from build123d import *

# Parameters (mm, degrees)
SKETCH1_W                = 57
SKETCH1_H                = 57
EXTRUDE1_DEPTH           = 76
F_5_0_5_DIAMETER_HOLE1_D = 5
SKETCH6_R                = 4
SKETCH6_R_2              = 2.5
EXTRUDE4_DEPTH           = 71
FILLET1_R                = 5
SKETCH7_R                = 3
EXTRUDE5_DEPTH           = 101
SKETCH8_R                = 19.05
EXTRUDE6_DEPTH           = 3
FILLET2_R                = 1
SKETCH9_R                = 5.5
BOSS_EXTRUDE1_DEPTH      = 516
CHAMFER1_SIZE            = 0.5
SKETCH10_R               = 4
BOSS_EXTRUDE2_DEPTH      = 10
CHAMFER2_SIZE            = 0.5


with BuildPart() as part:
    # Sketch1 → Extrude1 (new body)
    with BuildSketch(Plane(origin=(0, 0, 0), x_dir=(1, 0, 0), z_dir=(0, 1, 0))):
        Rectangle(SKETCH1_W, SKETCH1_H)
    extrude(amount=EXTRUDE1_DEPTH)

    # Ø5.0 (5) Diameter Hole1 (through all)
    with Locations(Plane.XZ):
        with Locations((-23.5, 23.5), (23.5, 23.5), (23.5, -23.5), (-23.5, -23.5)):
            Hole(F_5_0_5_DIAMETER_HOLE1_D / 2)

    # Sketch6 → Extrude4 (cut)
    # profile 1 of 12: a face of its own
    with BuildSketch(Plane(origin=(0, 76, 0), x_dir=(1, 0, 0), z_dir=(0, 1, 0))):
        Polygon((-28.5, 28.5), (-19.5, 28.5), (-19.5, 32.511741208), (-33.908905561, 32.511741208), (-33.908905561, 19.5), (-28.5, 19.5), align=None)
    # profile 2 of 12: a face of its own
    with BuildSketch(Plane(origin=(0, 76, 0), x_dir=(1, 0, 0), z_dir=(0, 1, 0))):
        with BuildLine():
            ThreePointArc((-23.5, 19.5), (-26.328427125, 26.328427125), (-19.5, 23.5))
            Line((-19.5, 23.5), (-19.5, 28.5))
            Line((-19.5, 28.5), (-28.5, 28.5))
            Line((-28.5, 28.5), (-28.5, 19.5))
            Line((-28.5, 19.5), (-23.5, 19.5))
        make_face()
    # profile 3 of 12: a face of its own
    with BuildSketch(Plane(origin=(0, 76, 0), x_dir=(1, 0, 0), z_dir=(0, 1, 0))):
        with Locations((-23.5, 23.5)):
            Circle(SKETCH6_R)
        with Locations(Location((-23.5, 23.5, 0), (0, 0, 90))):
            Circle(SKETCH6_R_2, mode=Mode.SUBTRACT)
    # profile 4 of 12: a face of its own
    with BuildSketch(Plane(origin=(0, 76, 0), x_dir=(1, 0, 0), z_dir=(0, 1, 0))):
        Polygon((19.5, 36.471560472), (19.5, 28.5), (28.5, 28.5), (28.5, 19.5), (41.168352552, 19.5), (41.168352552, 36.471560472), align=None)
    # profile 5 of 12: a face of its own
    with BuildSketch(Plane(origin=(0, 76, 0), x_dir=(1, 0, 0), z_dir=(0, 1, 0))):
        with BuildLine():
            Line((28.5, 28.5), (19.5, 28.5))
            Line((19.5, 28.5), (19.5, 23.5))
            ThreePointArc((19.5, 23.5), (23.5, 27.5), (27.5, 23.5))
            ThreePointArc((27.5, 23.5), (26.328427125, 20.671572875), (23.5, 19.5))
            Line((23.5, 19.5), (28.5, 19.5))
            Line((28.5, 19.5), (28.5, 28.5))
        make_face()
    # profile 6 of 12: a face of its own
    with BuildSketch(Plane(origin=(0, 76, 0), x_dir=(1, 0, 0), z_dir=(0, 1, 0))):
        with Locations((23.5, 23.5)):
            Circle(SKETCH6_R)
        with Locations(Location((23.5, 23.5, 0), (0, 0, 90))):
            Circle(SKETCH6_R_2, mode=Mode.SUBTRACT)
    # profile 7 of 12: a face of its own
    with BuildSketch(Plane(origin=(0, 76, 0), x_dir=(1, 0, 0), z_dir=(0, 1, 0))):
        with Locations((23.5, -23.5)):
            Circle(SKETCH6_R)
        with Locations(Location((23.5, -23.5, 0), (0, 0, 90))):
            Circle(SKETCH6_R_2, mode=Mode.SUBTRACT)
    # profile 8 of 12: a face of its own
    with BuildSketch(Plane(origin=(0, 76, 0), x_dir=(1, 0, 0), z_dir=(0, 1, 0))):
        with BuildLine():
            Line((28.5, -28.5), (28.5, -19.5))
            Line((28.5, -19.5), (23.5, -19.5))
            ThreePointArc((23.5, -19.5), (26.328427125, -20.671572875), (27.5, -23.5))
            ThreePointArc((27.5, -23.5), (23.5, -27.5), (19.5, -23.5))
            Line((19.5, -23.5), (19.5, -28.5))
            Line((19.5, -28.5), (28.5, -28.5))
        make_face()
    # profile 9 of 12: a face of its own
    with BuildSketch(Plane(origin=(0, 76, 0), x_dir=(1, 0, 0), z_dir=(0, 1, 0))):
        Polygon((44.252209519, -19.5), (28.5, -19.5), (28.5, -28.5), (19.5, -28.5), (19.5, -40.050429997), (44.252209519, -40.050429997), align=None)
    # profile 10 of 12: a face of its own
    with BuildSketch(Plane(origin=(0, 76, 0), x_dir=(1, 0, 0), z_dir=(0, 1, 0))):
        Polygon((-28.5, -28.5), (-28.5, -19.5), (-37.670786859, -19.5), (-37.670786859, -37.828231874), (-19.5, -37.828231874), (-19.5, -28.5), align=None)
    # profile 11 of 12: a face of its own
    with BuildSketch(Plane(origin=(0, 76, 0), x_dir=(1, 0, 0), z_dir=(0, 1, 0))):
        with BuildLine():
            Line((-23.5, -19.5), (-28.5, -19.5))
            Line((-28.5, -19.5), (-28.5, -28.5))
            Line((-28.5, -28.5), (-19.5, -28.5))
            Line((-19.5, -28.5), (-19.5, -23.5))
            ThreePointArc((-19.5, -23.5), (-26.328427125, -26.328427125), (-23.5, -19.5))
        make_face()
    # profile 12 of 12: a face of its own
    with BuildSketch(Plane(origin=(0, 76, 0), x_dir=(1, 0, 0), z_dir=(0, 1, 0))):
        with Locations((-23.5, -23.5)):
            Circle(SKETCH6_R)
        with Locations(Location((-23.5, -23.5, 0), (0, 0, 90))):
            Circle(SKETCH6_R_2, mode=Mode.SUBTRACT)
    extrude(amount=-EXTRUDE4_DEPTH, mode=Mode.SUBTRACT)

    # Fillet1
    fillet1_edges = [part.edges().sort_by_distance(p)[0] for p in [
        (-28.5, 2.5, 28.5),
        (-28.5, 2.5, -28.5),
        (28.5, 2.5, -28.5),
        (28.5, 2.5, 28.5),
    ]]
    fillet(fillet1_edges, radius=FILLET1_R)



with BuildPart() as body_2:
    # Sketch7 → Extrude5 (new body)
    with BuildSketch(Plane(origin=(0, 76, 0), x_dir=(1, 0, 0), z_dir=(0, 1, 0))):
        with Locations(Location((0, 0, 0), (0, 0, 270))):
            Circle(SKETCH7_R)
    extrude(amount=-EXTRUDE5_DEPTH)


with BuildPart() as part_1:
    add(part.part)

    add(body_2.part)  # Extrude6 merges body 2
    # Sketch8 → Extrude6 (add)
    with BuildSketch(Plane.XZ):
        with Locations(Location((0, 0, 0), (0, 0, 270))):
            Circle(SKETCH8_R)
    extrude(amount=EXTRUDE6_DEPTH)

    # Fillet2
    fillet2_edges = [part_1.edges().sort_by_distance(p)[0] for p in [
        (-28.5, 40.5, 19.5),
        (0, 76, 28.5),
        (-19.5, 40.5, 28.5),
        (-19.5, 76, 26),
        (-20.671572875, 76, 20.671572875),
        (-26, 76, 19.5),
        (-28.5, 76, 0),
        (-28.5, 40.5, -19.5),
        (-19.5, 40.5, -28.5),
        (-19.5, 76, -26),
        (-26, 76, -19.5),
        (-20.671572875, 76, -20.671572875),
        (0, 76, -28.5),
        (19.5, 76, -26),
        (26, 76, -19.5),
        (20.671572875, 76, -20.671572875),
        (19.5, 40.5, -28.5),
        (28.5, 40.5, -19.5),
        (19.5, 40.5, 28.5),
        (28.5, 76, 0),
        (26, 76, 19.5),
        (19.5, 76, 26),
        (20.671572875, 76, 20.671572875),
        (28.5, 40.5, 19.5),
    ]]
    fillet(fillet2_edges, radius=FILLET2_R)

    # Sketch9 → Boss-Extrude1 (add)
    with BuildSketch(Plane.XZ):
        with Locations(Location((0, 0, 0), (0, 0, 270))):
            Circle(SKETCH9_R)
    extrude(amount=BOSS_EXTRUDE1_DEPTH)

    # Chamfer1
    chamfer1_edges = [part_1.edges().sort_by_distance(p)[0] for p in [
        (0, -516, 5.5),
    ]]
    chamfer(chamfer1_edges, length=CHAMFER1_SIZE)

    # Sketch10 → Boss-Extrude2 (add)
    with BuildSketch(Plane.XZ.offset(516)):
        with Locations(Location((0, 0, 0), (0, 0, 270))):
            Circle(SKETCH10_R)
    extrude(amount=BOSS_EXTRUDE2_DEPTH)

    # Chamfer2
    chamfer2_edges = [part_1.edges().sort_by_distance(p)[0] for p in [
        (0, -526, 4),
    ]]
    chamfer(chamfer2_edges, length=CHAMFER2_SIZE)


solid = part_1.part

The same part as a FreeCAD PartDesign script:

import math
import FreeCAD as App
import Part
import Sketcher
from FreeCAD import Vector
Q = App.Units.Quantity


def edges_at(feature, points):
    """Names of the edges that pass closest to the given points."""
    edges = feature.Shape.Edges
    near = lambda p: min(range(len(edges)), key=lambda i: edges[i].distToShape(Part.Vertex(*p))[0])
    return sorted({f"Edge{near(p) + 1}" for p in points})

doc = App.newDocument("Part")
body = doc.addObject("PartDesign::Body", "Body")

sketch1 = doc.addObject("Sketcher::SketchObject", "Sketch")
body.addObject(sketch1)
sketch1.AttachmentSupport = (doc.XZ_Plane, [""])
sketch1.MapMode = "FlatFace"
sketch1.addGeometry(Part.LineSegment(Vector(-28, -28, 0), Vector(-28, 28, 0)), False)
sketch1.addGeometry(Part.LineSegment(Vector(-28, 28, 0), Vector(28, 28, 0)), False)
sketch1.addGeometry(Part.LineSegment(Vector(28, 28, 0), Vector(28, -28, 0)), False)
sketch1.addGeometry(Part.LineSegment(Vector(28, -28, 0), Vector(-28, -28, 0)), False)
sketch1.addConstraint(Sketcher.Constraint("Coincident", 0, 2, 1, 1))
sketch1.addConstraint(Sketcher.Constraint("Coincident", 1, 2, 2, 1))
sketch1.addConstraint(Sketcher.Constraint("Coincident", 2, 2, 3, 1))
sketch1.addConstraint(Sketcher.Constraint("Coincident", 3, 2, 0, 1))
sketch1.addConstraint(Sketcher.Constraint("Vertical", 0))
sketch1.addConstraint(Sketcher.Constraint("Horizontal", 1))
sketch1.addConstraint(Sketcher.Constraint("Vertical", 2))
sketch1.addConstraint(Sketcher.Constraint("Horizontal", 3))
sketch1.addConstraint(Sketcher.Constraint("Symmetric", 0, 2, 2, 2, -1, 1))
sketch1.addConstraint(Sketcher.Constraint("Equal", 3, 0))
sketch1.addConstraint(Sketcher.Constraint("DistanceX", 1, 1, 1, 2, Q("57 mm")))
pad1 = doc.addObject("PartDesign::Pad", "Pad")
body.addObject(pad1)
pad1.Profile = sketch1
pad1.Length = 76
pad1.Reversed = True

sketch2 = doc.addObject("Sketcher::SketchObject", "Sketch001")
body.addObject(sketch2)
sketch2.AttachmentSupport = (doc.XZ_Plane, [""])
sketch2.MapMode = "FlatFace"
sketch2.addGeometry(Part.Circle(Vector(-23.5, 23.5, 0), Vector(0, 0, 1), 2.5), False)
sketch2.addGeometry(Part.Circle(Vector(23.5, 23.5, 0), Vector(0, 0, 1), 2.5), False)
sketch2.addGeometry(Part.Circle(Vector(23.5, -23.5, 0), Vector(0, 0, 1), 2.5), False)
sketch2.addGeometry(Part.Circle(Vector(-23.5, -23.5, 0), Vector(0, 0, 1), 2.5), False)
sketch2.addConstraint(Sketcher.Constraint("Equal", 0, 1))
sketch2.addConstraint(Sketcher.Constraint("Equal", 1, 2))
sketch2.addConstraint(Sketcher.Constraint("Equal", 2, 3))
sketch2.addConstraint(Sketcher.Constraint("Symmetric", 0, 3, 2, 3, -1, 1))
sketch2.addConstraint(Sketcher.Constraint("Symmetric", 1, 3, 3, 3, -1, 1))
sketch2.addConstraint(Sketcher.Constraint("Symmetric", 0, 3, 1, 3, -2))
sketch2.addConstraint(Sketcher.Constraint("Diameter", 0, Q("5 mm")))
sketch2.addConstraint(Sketcher.Constraint("DistanceX", 0, 3, 1, 3, Q("47 mm")))
sketch2.addConstraint(Sketcher.Constraint("DistanceY", 2, 3, 1, 3, Q("47 mm")))
doc.recompute()
hole = doc.addObject("PartDesign::Hole", "Hole")
body.addObject(hole)
hole.Profile = sketch2
hole.ThreadType = "None"
hole.Diameter = 5
hole.DepthType = "ThroughAll"

sketch3 = doc.addObject("Sketcher::SketchObject", "Sketch002")
body.addObject(sketch3)
sketch3.AttachmentSupport = (doc.XZ_Plane, [""])
sketch3.MapMode = "FlatFace"
sketch3.AttachmentOffset = App.Placement(Vector(0, 0, -76), App.Rotation())
sketch3.addGeometry(Part.LineSegment(Vector(-19.5, -32.5, 0), Vector(-33.9, -32.5, 0)), False)
sketch3.addGeometry(Part.LineSegment(Vector(-33.9, -32.5, 0), Vector(-33.9, -19.5, 0)), False)
sketch3.addGeometry(Part.LineSegment(Vector(-33.9, -19.5, 0), Vector(-23.5, -19.5, 0)), False)
sketch3.addGeometry(Part.ArcOfCircle(Part.Circle(Vector(-23.5, -23.5, 0), Vector(0, 0, 1), 4), math.radians(0), math.radians(90)), False)
sketch3.addGeometry(Part.LineSegment(Vector(-19.5, -23.5, 0), Vector(-19.5, -32.5, 0)), False)
sketch3.addGeometry(Part.Circle(Vector(-23.5, -23.5, 0), Vector(0, 0, 1), 2.5), False)
sketch3.addGeometry(Part.LineSegment(Vector(19.5, -36.5, 0), Vector(19.5, -23.5, 0)), False)
sketch3.addGeometry(Part.ArcOfCircle(Part.Circle(Vector(23.5, -23.5, 0), Vector(0, 0, 1), 4), math.radians(90), math.radians(180)), False)
sketch3.addGeometry(Part.LineSegment(Vector(23.5, -19.5, 0), Vector(41.2, -19.5, 0)), False)
sketch3.addGeometry(Part.LineSegment(Vector(41.2, -19.5, 0), Vector(41.2, -36.5, 0)), False)
sketch3.addGeometry(Part.LineSegment(Vector(41.2, -36.5, 0), Vector(19.5, -36.5, 0)), False)
sketch3.addGeometry(Part.Circle(Vector(23.5, -23.5, 0), Vector(0, 0, 1), 2.5), False)
sketch3.addGeometry(Part.ArcOfCircle(Part.Circle(Vector(23.5, 23.5, 0), Vector(0, 0, 1), 4), math.radians(180), math.radians(270)), False)
sketch3.addGeometry(Part.LineSegment(Vector(19.5, 23.5, 0), Vector(19.5, 40.1, 0)), False)
sketch3.addGeometry(Part.LineSegment(Vector(19.5, 40.1, 0), Vector(44.3, 40.1, 0)), False)
sketch3.addGeometry(Part.LineSegment(Vector(44.3, 40.1, 0), Vector(44.3, 19.5, 0)), False)
sketch3.addGeometry(Part.LineSegment(Vector(44.3, 19.5, 0), Vector(23.5, 19.5, 0)), False)
sketch3.addGeometry(Part.Circle(Vector(23.5, 23.5, 0), Vector(0, 0, 1), 2.5), False)
sketch3.addGeometry(Part.LineSegment(Vector(-37.7, 19.5, 0), Vector(-37.7, 37.8, 0)), False)
sketch3.addGeometry(Part.LineSegment(Vector(-37.7, 37.8, 0), Vector(-19.5, 37.8, 0)), False)
sketch3.addGeometry(Part.LineSegment(Vector(-19.5, 37.8, 0), Vector(-19.5, 23.5, 0)), False)
sketch3.addGeometry(Part.ArcOfCircle(Part.Circle(Vector(-23.5, 23.5, 0), Vector(0, 0, 1), 4), math.radians(-90), math.radians(0)), False)
sketch3.addGeometry(Part.LineSegment(Vector(-23.5, 19.5, 0), Vector(-37.7, 19.5, 0)), False)
sketch3.addGeometry(Part.Circle(Vector(-23.5, 23.5, 0), Vector(0, 0, 1), 2.5), False)
sketch3.addConstraint(Sketcher.Constraint("Coincident", 0, 2, 1, 1))
sketch3.addConstraint(Sketcher.Constraint("Coincident", 1, 2, 2, 1))
sketch3.addConstraint(Sketcher.Constraint("Tangent", 2, 2, 3, 2))
sketch3.addConstraint(Sketcher.Constraint("Tangent", 3, 1, 4, 1))
sketch3.addConstraint(Sketcher.Constraint("Coincident", 4, 2, 0, 1))
sketch3.addConstraint(Sketcher.Constraint("Tangent", 6, 2, 7, 2))
sketch3.addConstraint(Sketcher.Constraint("Tangent", 7, 1, 8, 1))
sketch3.addConstraint(Sketcher.Constraint("Coincident", 8, 2, 9, 1))
sketch3.addConstraint(Sketcher.Constraint("Coincident", 9, 2, 10, 1))
sketch3.addConstraint(Sketcher.Constraint("Coincident", 10, 2, 6, 1))
sketch3.addConstraint(Sketcher.Constraint("Tangent", 12, 1, 13, 1))
sketch3.addConstraint(Sketcher.Constraint("Coincident", 13, 2, 14, 1))
sketch3.addConstraint(Sketcher.Constraint("Coincident", 14, 2, 15, 1))
sketch3.addConstraint(Sketcher.Constraint("Coincident", 15, 2, 16, 1))
sketch3.addConstraint(Sketcher.Constraint("Tangent", 16, 2, 12, 2))
sketch3.addConstraint(Sketcher.Constraint("Coincident", 18, 2, 19, 1))
sketch3.addConstraint(Sketcher.Constraint("Coincident", 19, 2, 20, 1))
sketch3.addConstraint(Sketcher.Constraint("Tangent", 20, 2, 21, 2))
sketch3.addConstraint(Sketcher.Constraint("Tangent", 21, 1, 22, 1))
sketch3.addConstraint(Sketcher.Constraint("Coincident", 22, 2, 18, 1))
sketch3.addConstraint(Sketcher.Constraint("Horizontal", 0))
sketch3.addConstraint(Sketcher.Constraint("Vertical", 1))
sketch3.addConstraint(Sketcher.Constraint("Horizontal", 2))
sketch3.addConstraint(Sketcher.Constraint("Vertical", 4))
sketch3.addConstraint(Sketcher.Constraint("Vertical", 6))
sketch3.addConstraint(Sketcher.Constraint("Horizontal", 8))
sketch3.addConstraint(Sketcher.Constraint("Vertical", 9))
sketch3.addConstraint(Sketcher.Constraint("Horizontal", 10))
sketch3.addConstraint(Sketcher.Constraint("Vertical", 13))
sketch3.addConstraint(Sketcher.Constraint("Horizontal", 14))
sketch3.addConstraint(Sketcher.Constraint("Vertical", 15))
sketch3.addConstraint(Sketcher.Constraint("Horizontal", 16))
sketch3.addConstraint(Sketcher.Constraint("Vertical", 18))
sketch3.addConstraint(Sketcher.Constraint("Horizontal", 19))
sketch3.addConstraint(Sketcher.Constraint("Vertical", 20))
sketch3.addConstraint(Sketcher.Constraint("Horizontal", 22))
sketch3.addConstraint(Sketcher.Constraint("Coincident", 5, 3, 3, 3))
sketch3.addConstraint(Sketcher.Constraint("Coincident", 11, 3, 7, 3))
sketch3.addConstraint(Sketcher.Constraint("Coincident", 17, 3, 12, 3))
sketch3.addConstraint(Sketcher.Constraint("Coincident", 23, 3, 21, 3))
sketch3.addConstraint(Sketcher.Constraint("Equal", 3, 7))
sketch3.addConstraint(Sketcher.Constraint("Equal", 5, 11))
sketch3.addConstraint(Sketcher.Constraint("Equal", 7, 12))
sketch3.addConstraint(Sketcher.Constraint("Equal", 11, 17))
sketch3.addConstraint(Sketcher.Constraint("Equal", 12, 21))
sketch3.addConstraint(Sketcher.Constraint("Equal", 17, 23))
sketch3.addConstraint(Sketcher.Constraint("Symmetric", 3, 3, 12, 3, -1, 1))
sketch3.addConstraint(Sketcher.Constraint("Symmetric", 7, 3, 21, 3, -1, 1))
sketch3.addConstraint(Sketcher.Constraint("Symmetric", 3, 3, 7, 3, -2))
sketch3.addConstraint(Sketcher.Constraint("Diameter", 5, Q("5 mm")))
sketch3.addConstraint(Sketcher.Constraint("Radius", 3, Q("4 mm")))
sketch3.addConstraint(Sketcher.Constraint("DistanceX", 3, 3, 7, 3, Q("47 mm")))
sketch3.addConstraint(Sketcher.Constraint("DistanceY", 7, 3, 12, 3, Q("47 mm")))
sketch3.addConstraint(Sketcher.Constraint("DistanceX", 14, 1, 14, 2, Q("24.75221 mm")))
sketch3.addConstraint(Sketcher.Constraint("DistanceY", 1, 1, 1, 2, Q("13.011741 mm")))
sketch3.addConstraint(Sketcher.Constraint("DistanceY", 6, 1, 6, 2, Q("12.97156 mm")))
sketch3.addConstraint(Sketcher.Constraint("DistanceY", 13, 1, 13, 2, Q("16.55043 mm")))
sketch3.addConstraint(Sketcher.Constraint("DistanceY", 18, 1, 18, 2, Q("18.328232 mm")))
sketch3.addConstraint(Sketcher.Constraint("DistanceX", 0, 2, 0, 1, Q("14.408906 mm")))
sketch3.addConstraint(Sketcher.Constraint("DistanceX", 8, 1, 8, 2, Q("17.668353 mm")))
sketch3.addConstraint(Sketcher.Constraint("DistanceX", 19, 1, 19, 2, Q("18.170787 mm")))
pocket1 = doc.addObject("PartDesign::Pocket", "Pocket")
body.addObject(pocket1)
pocket1.Profile = sketch3
pocket1.Length = 71
pocket1.Reversed = True
doc.recompute()

fillet = doc.addObject("PartDesign::Fillet", "Fillet")
body.addObject(fillet)
fillet.Base = (pocket1, edges_at(pocket1, [
    (-28.5, 2.5, 28.5),
    (-28.5, 2.5, -28.5),
    (28.5, 2.5, -28.5),
    (28.5, 2.5, 28.5),
]))
fillet.Radius = 5
body2 = doc.addObject("PartDesign::Body", "Body001")

sketch4 = doc.addObject("Sketcher::SketchObject", "Sketch003")
body2.addObject(sketch4)
sketch4.AttachmentSupport = (doc.getObject("XZ_Plane001"), [""])
sketch4.MapMode = "FlatFace"
sketch4.AttachmentOffset = App.Placement(Vector(0, 0, -76), App.Rotation())
sketch4.addGeometry(Part.Circle(Vector(0, 0, 0), Vector(0, 0, 1), 3), False)
sketch4.addConstraint(Sketcher.Constraint("Coincident", 0, 3, -1, 1))
sketch4.addConstraint(Sketcher.Constraint("Diameter", 0, Q("6 mm")))
pad2 = doc.addObject("PartDesign::Pad", "Pad001")
body2.addObject(pad2)
pad2.Profile = sketch4
pad2.Length = 101
doc.recompute()

boolean = doc.addObject("PartDesign::Boolean", "Boolean")
body.addObject(boolean)
boolean.Type = "Fuse"
boolean.addObjects([body2])

sketch5 = doc.addObject("Sketcher::SketchObject", "Sketch004")
body.addObject(sketch5)
sketch5.AttachmentSupport = (doc.XZ_Plane, [""])
sketch5.MapMode = "FlatFace"
sketch5.addGeometry(Part.Circle(Vector(0, 0, 0), Vector(0, 0, 1), 19), False)
sketch5.addConstraint(Sketcher.Constraint("Coincident", 0, 3, -1, 1))
sketch5.addConstraint(Sketcher.Constraint("Diameter", 0, Q("38.1 mm")))
pad3 = doc.addObject("PartDesign::Pad", "Pad002")
body.addObject(pad3)
pad3.Profile = sketch5
pad3.Length = 3
doc.recompute()

fillet2 = doc.addObject("PartDesign::Fillet", "Fillet001")
body.addObject(fillet2)
fillet2.Base = (pad3, edges_at(pad3, [
    (-28.5, 40.5, 19.5),
    (0, 76, 28.5),
    (-19.5, 40.5, 28.5),
    (-19.5, 76, 26),
    (-20.672, 76, 20.672),
    (-26, 76, 19.5),
    (-28.5, 76, 0),
    (-28.5, 40.5, -19.5),
    (-19.5, 40.5, -28.5),
    (-19.5, 76, -26),
    (-26, 76, -19.5),
    (-20.672, 76, -20.672),
    (0, 76, -28.5),
    (19.5, 76, -26),
    (26, 76, -19.5),
    (20.672, 76, -20.672),
    (19.5, 40.5, -28.5),
    (28.5, 40.5, -19.5),
    (19.5, 40.5, 28.5),
    (28.5, 76, 0),
    (26, 76, 19.5),
    (19.5, 76, 26),
    (20.672, 76, 20.672),
    (28.5, 40.5, 19.5),
]))
fillet2.Radius = 1

sketch6 = doc.addObject("Sketcher::SketchObject", "Sketch005")
body.addObject(sketch6)
sketch6.AttachmentSupport = (doc.XZ_Plane, [""])
sketch6.MapMode = "FlatFace"
sketch6.addGeometry(Part.Circle(Vector(0, 0, 0), Vector(0, 0, 1), 6), False)
sketch6.addConstraint(Sketcher.Constraint("Coincident", 0, 3, -1, 1))
sketch6.addConstraint(Sketcher.Constraint("Diameter", 0, Q("11 mm")))
pad4 = doc.addObject("PartDesign::Pad", "Pad003")
body.addObject(pad4)
pad4.Profile = sketch6
pad4.Length = 516
doc.recompute()

chamfer = doc.addObject("PartDesign::Chamfer", "Chamfer")
body.addObject(chamfer)
chamfer.Base = (pad4, edges_at(pad4, [(0, -516, 5.5)]))
chamfer.Size = 0.5

sketch7 = doc.addObject("Sketcher::SketchObject", "Sketch006")
body.addObject(sketch7)
sketch7.AttachmentSupport = (doc.XZ_Plane, [""])
sketch7.MapMode = "FlatFace"
sketch7.AttachmentOffset = App.Placement(Vector(0, 0, 516), App.Rotation())
sketch7.addGeometry(Part.Circle(Vector(0, 0, 0), Vector(0, 0, 1), 4), False)
sketch7.addConstraint(Sketcher.Constraint("Coincident", 0, 3, -1, 1))
sketch7.addConstraint(Sketcher.Constraint("Diameter", 0, Q("8 mm")))
pad5 = doc.addObject("PartDesign::Pad", "Pad004")
body.addObject(pad5)
pad5.Profile = sketch7
pad5.Length = 10
doc.recompute()

chamfer2 = doc.addObject("PartDesign::Chamfer", "Chamfer001")
body.addObject(chamfer2)
chamfer2.Base = (pad5, edges_at(pad5, [(0, -526, 4)]))
chamfer2.Size = 0.5

doc.recompute()
